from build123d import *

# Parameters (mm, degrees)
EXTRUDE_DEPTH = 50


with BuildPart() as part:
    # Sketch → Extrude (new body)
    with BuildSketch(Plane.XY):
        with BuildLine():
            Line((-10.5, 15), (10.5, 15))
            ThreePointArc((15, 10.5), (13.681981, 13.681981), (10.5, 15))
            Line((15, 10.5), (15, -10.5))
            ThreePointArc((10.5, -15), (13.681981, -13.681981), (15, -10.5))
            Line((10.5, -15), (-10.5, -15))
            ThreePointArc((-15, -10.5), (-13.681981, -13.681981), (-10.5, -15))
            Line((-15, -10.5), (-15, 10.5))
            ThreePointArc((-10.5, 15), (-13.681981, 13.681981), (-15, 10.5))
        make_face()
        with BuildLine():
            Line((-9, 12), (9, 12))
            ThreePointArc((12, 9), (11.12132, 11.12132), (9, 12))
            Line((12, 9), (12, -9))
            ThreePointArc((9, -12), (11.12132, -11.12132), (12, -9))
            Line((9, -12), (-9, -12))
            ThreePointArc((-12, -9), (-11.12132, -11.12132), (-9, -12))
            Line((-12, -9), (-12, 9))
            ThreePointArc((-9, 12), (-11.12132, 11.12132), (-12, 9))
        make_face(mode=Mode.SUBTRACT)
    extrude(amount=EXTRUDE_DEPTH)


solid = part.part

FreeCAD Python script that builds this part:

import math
import FreeCAD as App
import Part
import Sketcher

V = App.Vector
Q = App.Units.Quantity

doc = App.newDocument("Part")
body = doc.addObject("PartDesign::Body", "Body")

sketch1 = body.newObject("Sketcher::SketchObject", "Sketch")
sketch1.AttachmentSupport = (doc.getObject("XY_Plane"), [""])
sketch1.MapMode = "FlatFace"
sketch1.addGeometry(Part.LineSegment(V(10.5, 15, 0), V(-10.5, 15, 0)), False)
sketch1.addGeometry(Part.ArcOfCircle(Part.Circle(V(-10.5, 10.5, 0), V(0, 0, 1), 4.5), math.radians(90), math.radians(180)), False)
sketch1.addGeometry(Part.LineSegment(V(-15, 10.5, 0), V(-15, -10.5, 0)), False)
sketch1.addGeometry(Part.ArcOfCircle(Part.Circle(V(-10.5, -10.5, 0), V(0, 0, 1), 4.5), math.radians(180), math.radians(270)), False)
sketch1.addGeometry(Part.LineSegment(V(-10.5, -15, 0), V(10.5, -15, 0)), False)
sketch1.addGeometry(Part.ArcOfCircle(Part.Circle(V(10.5, -10.5, 0), V(0, 0, 1), 4.5), math.radians(-90), math.radians(0)), False)
sketch1.addGeometry(Part.LineSegment(V(15, -10.5, 0), V(15, 10.5, 0)), False)
sketch1.addGeometry(Part.ArcOfCircle(Part.Circle(V(10.5, 10.5, 0), V(0, 0, 1), 4.5), math.radians(0), math.radians(90)), False)
sketch1.addGeometry(Part.LineSegment(V(-9, 12, 0), V(9, 12, 0)), False)
sketch1.addGeometry(Part.ArcOfCircle(Part.Circle(V(9, 9, 0), V(0, 0, 1), 3), math.radians(0), math.radians(90)), False)
sketch1.addGeometry(Part.LineSegment(V(12, 9, 0), V(12, -9, 0)), False)
sketch1.addGeometry(Part.ArcOfCircle(Part.Circle(V(9, -9, 0), V(0, 0, 1), 3), math.radians(-90), math.radians(0)), False)
sketch1.addGeometry(Part.LineSegment(V(9, -12, 0), V(-9, -12, 0)), False)
sketch1.addGeometry(Part.ArcOfCircle(Part.Circle(V(-9, -9, 0), V(0, 0, 1), 3), math.radians(-180), math.radians(-90)), False)
sketch1.addGeometry(Part.LineSegment(V(-12, -9, 0), V(-12, 9, 0)), False)
sketch1.addGeometry(Part.ArcOfCircle(Part.Circle(V(-9, 9, 0), V(0, 0, 1), 3), math.radians(90), math.radians(180)), False)
sketch1.addConstraint(Sketcher.Constraint("Tangent", 0, 2, 1, 1))
sketch1.addConstraint(Sketcher.Constraint("Tangent", 1, 2, 2, 1))
sketch1.addConstraint(Sketcher.Constraint("Tangent", 2, 2, 3, 1))
sketch1.addConstraint(Sketcher.Constraint("Tangent", 3, 2, 4, 1))
sketch1.addConstraint(Sketcher.Constraint("Tangent", 4, 2, 5, 1))
sketch1.addConstraint(Sketcher.Constraint("Tangent", 5, 2, 6, 1))
sketch1.addConstraint(Sketcher.Constraint("Tangent", 6, 2, 7, 1))
sketch1.addConstraint(Sketcher.Constraint("Tangent", 7, 2, 0, 1))
sketch1.addConstraint(Sketcher.Constraint("Tangent", 8, 2, 9, 2))
sketch1.addConstraint(Sketcher.Constraint("Tangent", 9, 1, 10, 1))
sketch1.addConstraint(Sketcher.Constraint("Tangent", 10, 2, 11, 2))
sketch1.addConstraint(Sketcher.Constraint("Tangent", 11, 1, 12, 1))
sketch1.addConstraint(Sketcher.Constraint("Tangent", 12, 2, 13, 2))
sketch1.addConstraint(Sketcher.Constraint("Tangent", 13, 1, 14, 1))
sketch1.addConstraint(Sketcher.Constraint("Tangent", 14, 2, 15, 2))
sketch1.addConstraint(Sketcher.Constraint("Tangent", 15, 1, 8, 1))
sketch1.addConstraint(Sketcher.Constraint("Horizontal", 0))
sketch1.addConstraint(Sketcher.Constraint("Vertical", 2))
sketch1.addConstraint(Sketcher.Constraint("Horizontal", 4))
sketch1.addConstraint(Sketcher.Constraint("Vertical", 6))
sketch1.addConstraint(Sketcher.Constraint("Horizontal", 8))
sketch1.addConstraint(Sketcher.Constraint("Vertical", 10))
sketch1.addConstraint(Sketcher.Constraint("Horizontal", 12))
sketch1.addConstraint(Sketcher.Constraint("Vertical", 14))
sketch1.addConstraint(Sketcher.Constraint("Equal", 1, 3))
sketch1.addConstraint(Sketcher.Constraint("Equal", 3, 5))
sketch1.addConstraint(Sketcher.Constraint("Equal", 5, 7))
sketch1.addConstraint(Sketcher.Constraint("Equal", 9, 11))
sketch1.addConstraint(Sketcher.Constraint("Equal", 11, 13))
sketch1.addConstraint(Sketcher.Constraint("Equal", 13, 15))
sketch1.addConstraint(Sketcher.Constraint("Symmetric", 1, 3, 5, 3, -1, 1))
sketch1.addConstraint(Sketcher.Constraint("Symmetric", 9, 3, 13, 3, -1, 1))
sketch1.addConstraint(Sketcher.Constraint("Equal", 4, 2))
sketch1.addConstraint(Sketcher.Constraint("Equal", 12, 10))
sketch1.addConstraint(Sketcher.Constraint("Radius", 9, Q("3.000001 mm")))
sketch1.addConstraint(Sketcher.Constraint("Radius", 1, Q("4.499998 mm")))
sketch1.addConstraint(Sketcher.Constraint("DistanceX", 0, 2, 0, 1, Q("21 mm")))
sketch1.addConstraint(Sketcher.Constraint("DistanceX", 8, 1, 8, 2, Q("18 mm")))
pad1 = body.newObject("PartDesign::Pad", "Pad")
pad1.Profile = sketch1
pad1.Length = 50

doc.recompute()
